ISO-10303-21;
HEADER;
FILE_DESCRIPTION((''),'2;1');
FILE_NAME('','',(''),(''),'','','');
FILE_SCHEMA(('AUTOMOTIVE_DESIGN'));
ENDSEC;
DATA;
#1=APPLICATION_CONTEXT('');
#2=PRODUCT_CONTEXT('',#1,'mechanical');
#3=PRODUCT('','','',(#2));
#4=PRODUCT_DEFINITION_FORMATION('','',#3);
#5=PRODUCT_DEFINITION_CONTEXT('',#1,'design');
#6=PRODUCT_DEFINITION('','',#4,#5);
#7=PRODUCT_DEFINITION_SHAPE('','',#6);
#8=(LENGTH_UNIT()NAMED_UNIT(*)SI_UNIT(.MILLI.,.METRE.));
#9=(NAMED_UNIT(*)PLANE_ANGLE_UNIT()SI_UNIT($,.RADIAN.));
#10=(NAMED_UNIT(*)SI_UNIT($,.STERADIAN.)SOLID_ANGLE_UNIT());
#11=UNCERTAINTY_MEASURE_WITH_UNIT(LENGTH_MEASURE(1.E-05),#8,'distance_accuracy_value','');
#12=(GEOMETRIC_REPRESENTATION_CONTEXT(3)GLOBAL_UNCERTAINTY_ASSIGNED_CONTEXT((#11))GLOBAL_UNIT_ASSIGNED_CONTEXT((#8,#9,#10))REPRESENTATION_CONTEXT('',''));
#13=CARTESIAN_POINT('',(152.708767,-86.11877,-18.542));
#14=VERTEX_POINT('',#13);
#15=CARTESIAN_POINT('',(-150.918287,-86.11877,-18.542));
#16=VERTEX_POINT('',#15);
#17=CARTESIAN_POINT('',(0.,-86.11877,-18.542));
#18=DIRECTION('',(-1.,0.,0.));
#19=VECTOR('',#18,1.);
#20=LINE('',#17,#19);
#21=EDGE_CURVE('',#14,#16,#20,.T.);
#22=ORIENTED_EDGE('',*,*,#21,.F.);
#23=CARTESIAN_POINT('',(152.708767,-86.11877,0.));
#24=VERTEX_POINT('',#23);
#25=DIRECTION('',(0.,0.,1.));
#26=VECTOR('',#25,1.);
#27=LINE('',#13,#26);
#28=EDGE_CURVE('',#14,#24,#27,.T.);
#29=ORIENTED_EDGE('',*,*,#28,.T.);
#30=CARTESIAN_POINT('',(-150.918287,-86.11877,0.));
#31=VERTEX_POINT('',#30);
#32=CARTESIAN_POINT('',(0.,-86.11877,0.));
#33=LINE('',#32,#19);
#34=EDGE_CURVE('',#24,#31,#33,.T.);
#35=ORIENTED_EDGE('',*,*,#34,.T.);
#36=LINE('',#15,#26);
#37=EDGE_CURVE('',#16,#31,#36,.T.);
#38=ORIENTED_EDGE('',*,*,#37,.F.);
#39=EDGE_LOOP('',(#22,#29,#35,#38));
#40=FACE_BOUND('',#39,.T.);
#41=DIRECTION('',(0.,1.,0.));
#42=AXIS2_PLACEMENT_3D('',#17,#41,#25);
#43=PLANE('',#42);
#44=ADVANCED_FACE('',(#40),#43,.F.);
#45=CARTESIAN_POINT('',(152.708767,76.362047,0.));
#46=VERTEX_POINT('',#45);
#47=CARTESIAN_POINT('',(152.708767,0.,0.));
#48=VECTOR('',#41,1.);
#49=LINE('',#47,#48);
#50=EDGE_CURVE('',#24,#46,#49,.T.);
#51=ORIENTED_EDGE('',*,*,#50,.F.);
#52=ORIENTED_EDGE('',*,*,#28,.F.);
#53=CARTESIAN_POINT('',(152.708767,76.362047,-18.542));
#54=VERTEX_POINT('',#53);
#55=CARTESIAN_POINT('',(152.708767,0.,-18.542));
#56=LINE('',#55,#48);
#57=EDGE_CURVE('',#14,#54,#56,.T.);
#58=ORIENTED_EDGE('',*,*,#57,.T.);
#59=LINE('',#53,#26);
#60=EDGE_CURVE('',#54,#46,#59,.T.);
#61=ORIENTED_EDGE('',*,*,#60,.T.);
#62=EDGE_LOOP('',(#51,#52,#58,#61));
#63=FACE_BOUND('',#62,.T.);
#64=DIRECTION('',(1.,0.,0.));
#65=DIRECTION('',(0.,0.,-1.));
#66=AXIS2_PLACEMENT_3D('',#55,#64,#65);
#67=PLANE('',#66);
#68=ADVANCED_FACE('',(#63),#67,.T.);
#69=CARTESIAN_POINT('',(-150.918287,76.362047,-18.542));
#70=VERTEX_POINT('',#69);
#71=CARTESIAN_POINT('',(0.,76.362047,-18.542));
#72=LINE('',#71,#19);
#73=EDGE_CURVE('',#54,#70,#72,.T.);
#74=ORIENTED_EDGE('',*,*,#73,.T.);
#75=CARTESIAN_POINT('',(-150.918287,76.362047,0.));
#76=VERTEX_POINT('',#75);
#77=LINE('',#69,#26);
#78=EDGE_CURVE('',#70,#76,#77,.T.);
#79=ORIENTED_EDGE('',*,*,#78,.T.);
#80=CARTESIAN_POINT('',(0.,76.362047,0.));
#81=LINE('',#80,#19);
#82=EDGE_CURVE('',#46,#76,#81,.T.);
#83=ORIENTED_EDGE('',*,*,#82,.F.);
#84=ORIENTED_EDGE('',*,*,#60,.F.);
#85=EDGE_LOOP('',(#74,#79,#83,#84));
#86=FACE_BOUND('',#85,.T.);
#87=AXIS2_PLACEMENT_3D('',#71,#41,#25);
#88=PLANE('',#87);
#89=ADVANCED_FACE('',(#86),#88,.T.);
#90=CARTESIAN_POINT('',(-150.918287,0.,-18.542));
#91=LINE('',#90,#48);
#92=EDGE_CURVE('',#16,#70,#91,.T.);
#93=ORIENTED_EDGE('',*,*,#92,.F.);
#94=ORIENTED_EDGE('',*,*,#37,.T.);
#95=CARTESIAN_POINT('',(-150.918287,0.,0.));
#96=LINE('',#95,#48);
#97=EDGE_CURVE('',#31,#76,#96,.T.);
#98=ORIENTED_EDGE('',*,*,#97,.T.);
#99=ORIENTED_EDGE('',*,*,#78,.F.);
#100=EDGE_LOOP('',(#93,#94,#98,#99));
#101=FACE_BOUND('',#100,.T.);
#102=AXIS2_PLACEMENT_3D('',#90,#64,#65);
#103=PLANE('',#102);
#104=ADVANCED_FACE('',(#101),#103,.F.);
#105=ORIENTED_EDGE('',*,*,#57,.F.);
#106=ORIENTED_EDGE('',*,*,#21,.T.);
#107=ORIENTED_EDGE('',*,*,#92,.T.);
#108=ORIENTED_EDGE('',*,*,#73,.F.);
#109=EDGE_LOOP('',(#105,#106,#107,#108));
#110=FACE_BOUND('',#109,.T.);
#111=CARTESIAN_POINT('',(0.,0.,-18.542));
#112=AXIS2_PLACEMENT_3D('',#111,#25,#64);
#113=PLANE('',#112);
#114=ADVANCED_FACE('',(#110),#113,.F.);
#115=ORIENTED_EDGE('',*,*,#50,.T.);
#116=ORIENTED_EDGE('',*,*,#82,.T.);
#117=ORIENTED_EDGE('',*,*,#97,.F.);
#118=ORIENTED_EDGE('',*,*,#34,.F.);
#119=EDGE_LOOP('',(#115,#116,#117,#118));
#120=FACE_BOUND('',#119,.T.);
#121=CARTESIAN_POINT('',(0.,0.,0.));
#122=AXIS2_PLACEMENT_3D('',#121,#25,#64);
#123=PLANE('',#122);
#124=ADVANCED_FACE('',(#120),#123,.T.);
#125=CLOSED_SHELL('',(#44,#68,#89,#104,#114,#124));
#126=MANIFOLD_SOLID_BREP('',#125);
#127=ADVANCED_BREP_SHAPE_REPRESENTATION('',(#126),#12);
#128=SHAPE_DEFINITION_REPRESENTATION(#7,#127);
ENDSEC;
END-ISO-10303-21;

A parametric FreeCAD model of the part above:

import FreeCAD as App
import Part
import Sketcher
from FreeCAD import Vector
Q = App.Units.Quantity

doc = App.newDocument("Part")
body = doc.addObject("PartDesign::Body", "Body")

sketch1 = body.newObject("Sketcher::SketchObject", "Sketch")
sketch1.AttachmentSupport = (doc.getObject("XY_Plane"), [""])
sketch1.MapMode = "FlatFace"
sketch1.addGeometry(Part.LineSegment(Vector(-150.918287, 76.362047, 0), Vector(-150.918287, -86.11877, 0)), False)
sketch1.addGeometry(Part.LineSegment(Vector(-150.918287, -86.11877, 0), Vector(152.708767, -86.11877, 0)), False)
sketch1.addGeometry(Part.LineSegment(Vector(152.708767, -86.11877, 0), Vector(152.708767, 76.362047, 0)), False)
sketch1.addGeometry(Part.LineSegment(Vector(152.708767, 76.362047, 0), Vector(-150.918287, 76.362047, 0)), False)
sketch1.addConstraint(Sketcher.Constraint("Coincident", 0, 2, 1, 1))
sketch1.addConstraint(Sketcher.Constraint("Coincident", 1, 2, 2, 1))
sketch1.addConstraint(Sketcher.Constraint("Coincident", 2, 2, 3, 1))
sketch1.addConstraint(Sketcher.Constraint("Coincident", 3, 2, 0, 1))
sketch1.addConstraint(Sketcher.Constraint("Vertical", 0))
sketch1.addConstraint(Sketcher.Constraint("Horizontal", 1))
sketch1.addConstraint(Sketcher.Constraint("Vertical", 2))
sketch1.addConstraint(Sketcher.Constraint("Horizontal", 3))
sketch1.addConstraint(Sketcher.Constraint("DistanceX", 1, 1, 1, 2, 303.627054))
sketch1.addConstraint(Sketcher.Constraint("DistanceY", 0, 2, 0, 1, 162.480817))
sketch1.addConstraint(Sketcher.Constraint("DistanceY", 0, 2, -1, 1, 86.11877))
sketch1.addConstraint(Sketcher.Constraint("DistanceX", 0, 2, -1, 1, 150.918287))
pad1 = body.newObject("PartDesign::Pad", "Pad")
pad1.Profile = sketch1
pad1.Length = Q("0.73 in")
pad1.Reversed = True

doc.recompute()
